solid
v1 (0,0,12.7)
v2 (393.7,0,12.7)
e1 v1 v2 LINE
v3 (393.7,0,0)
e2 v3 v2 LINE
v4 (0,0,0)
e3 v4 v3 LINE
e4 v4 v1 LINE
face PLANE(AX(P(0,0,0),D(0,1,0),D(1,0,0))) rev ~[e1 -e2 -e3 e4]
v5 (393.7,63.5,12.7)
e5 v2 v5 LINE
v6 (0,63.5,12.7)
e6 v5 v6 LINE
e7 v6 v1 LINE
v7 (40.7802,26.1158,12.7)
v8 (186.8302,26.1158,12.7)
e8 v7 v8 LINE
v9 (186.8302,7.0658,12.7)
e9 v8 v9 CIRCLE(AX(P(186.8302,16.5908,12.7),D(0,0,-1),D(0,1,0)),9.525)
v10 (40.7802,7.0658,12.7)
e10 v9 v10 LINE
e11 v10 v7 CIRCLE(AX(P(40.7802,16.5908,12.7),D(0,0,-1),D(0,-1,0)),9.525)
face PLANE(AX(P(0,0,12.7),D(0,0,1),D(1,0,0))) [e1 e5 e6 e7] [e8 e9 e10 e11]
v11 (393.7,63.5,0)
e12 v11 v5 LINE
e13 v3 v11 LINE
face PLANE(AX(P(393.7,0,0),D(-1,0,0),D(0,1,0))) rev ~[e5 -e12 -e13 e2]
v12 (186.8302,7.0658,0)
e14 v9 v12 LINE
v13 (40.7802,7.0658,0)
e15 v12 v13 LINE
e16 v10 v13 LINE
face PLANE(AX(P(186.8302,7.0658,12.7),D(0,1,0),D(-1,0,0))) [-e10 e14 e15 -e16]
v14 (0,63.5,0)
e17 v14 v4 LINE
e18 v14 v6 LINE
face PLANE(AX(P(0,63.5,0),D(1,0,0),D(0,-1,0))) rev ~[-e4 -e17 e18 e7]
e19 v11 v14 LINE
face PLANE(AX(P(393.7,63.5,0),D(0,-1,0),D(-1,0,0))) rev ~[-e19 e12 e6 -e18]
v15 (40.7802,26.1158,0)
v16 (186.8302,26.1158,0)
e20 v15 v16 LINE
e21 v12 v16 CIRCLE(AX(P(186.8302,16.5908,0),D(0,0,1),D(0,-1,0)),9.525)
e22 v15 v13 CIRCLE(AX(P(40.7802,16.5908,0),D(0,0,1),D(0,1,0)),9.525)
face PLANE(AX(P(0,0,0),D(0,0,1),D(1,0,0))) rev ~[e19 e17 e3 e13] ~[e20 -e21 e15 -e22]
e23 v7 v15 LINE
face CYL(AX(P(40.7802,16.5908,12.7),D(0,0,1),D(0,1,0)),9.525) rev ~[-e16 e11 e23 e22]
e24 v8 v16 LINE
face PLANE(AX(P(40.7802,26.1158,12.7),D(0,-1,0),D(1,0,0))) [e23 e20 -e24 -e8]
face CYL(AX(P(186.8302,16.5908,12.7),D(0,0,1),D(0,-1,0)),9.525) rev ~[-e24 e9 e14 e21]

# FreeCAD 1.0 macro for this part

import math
import FreeCAD as App
import Part
import Sketcher

V = App.Vector
Q = App.Units.Quantity

doc = App.newDocument("Part")
body = doc.addObject("PartDesign::Body", "Body")

sketch1 = doc.addObject("Sketcher::SketchObject", "Sketch")
body.addObject(sketch1)
sketch1.AttachmentSupport = (doc.XY_Plane, [""])
sketch1.MapMode = "FlatFace"
sketch1.addGeometry(Part.LineSegment(V(0, 63.5, 0), V(0, 0, 0)), False)
sketch1.addGeometry(Part.LineSegment(V(0, 0, 0), V(393.7, 0, 0)), False)
sketch1.addGeometry(Part.LineSegment(V(393.7, 0, 0), V(393.7, 63.5, 0)), False)
sketch1.addGeometry(Part.LineSegment(V(393.7, 63.5, 0), V(0, 63.5, 0)), False)
sketch1.addConstraint(Sketcher.Constraint("Coincident", 0, 2, 1, 1))
sketch1.addConstraint(Sketcher.Constraint("Coincident", 1, 2, 2, 1))
sketch1.addConstraint(Sketcher.Constraint("Coincident", 2, 2, 3, 1))
sketch1.addConstraint(Sketcher.Constraint("Coincident", 3, 2, 0, 1))
sketch1.addConstraint(Sketcher.Constraint("Vertical", 0))
sketch1.addConstraint(Sketcher.Constraint("Horizontal", 1))
sketch1.addConstraint(Sketcher.Constraint("Vertical", 2))
sketch1.addConstraint(Sketcher.Constraint("Horizontal", 3))
sketch1.addConstraint(Sketcher.Constraint("Coincident", 0, 2, -1, 1))
sketch1.addConstraint(Sketcher.Constraint("DistanceX", 1, 1, 1, 2, Q("15.5 in")))
sketch1.addConstraint(Sketcher.Constraint("DistanceY", 0, 2, 0, 1, Q("2.5 in")))
pad1 = doc.addObject("PartDesign::Pad", "Pad")
body.addObject(pad1)
pad1.Profile = sketch1
pad1.Length = Q("0.5 in")

sketch2 = doc.addObject("Sketcher::SketchObject", "Sketch001")
body.addObject(sketch2)
sketch2.AttachmentSupport = (doc.XY_Plane, [""])
sketch2.MapMode = "FlatFace"
sketch2.AttachmentOffset = App.Placement(V(0, 0, 0.5 * 25.4), App.Rotation())
sketch2.addGeometry(Part.LineSegment(V(186.8302, 26.1158, 0), V(40.7802, 26.1158, 0)), False)
sketch2.addGeometry(Part.ArcOfCircle(Part.Circle(V(40.7802, 16.5908, 0), V(0, 0, 1), 9.525), math.radians(90), math.radians(270)), False)
sketch2.addGeometry(Part.LineSegment(V(40.7802, 7.0658, 0), V(186.8302, 7.0658, 0)), False)
sketch2.addGeometry(Part.ArcOfCircle(Part.Circle(V(186.8302, 16.5908, 0), V(0, 0, 1), 9.525), math.radians(-90), math.radians(90)), False)
sketch2.addConstraint(Sketcher.Constraint("Tangent", 0, 2, 1, 1))
sketch2.addConstraint(Sketcher.Constraint("Tangent", 1, 2, 2, 1))
sketch2.addConstraint(Sketcher.Constraint("Tangent", 2, 2, 3, 1))
sketch2.addConstraint(Sketcher.Constraint("Tangent", 3, 2, 0, 1))
sketch2.addConstraint(Sketcher.Constraint("Horizontal", 0))
sketch2.addConstraint(Sketcher.Constraint("Horizontal", 2))
sketch2.addConstraint(Sketcher.Constraint("Radius", 1, Q("0.375 in")))
sketch2.addConstraint(Sketcher.Constraint("DistanceX", 0, 2, 0, 1, Q("5.75 in")))
sketch2.addConstraint(Sketcher.Constraint("DistanceX", -1, 1, 1, 3, Q("40.7802 mm")))
sketch2.addConstraint(Sketcher.Constraint("DistanceY", -1, 1, 1, 3, Q("16.5908 mm")))
pocket1 = doc.addObject("PartDesign::Pocket", "Pocket")
body.addObject(pocket1)
pocket1.Profile = sketch2
pocket1.Type = "ThroughAll"

doc.recompute()
